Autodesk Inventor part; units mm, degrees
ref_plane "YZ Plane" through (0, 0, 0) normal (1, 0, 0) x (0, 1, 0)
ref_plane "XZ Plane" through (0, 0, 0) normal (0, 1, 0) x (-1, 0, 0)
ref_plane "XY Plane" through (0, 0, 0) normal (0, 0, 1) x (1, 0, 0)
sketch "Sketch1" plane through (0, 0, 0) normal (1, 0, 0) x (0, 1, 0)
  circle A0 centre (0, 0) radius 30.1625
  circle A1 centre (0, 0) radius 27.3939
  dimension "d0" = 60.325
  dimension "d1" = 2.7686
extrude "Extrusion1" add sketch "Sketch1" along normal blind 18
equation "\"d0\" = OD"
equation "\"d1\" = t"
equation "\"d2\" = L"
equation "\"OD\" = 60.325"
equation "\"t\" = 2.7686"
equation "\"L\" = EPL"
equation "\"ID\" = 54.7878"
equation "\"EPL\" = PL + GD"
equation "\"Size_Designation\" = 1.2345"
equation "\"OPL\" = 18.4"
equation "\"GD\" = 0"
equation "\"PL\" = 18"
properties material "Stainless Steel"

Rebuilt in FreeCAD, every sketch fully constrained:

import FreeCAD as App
import Part
import Sketcher
from FreeCAD import Vector
Q = App.Units.Quantity

doc = App.newDocument("Part")
body = doc.addObject("PartDesign::Body", "Body")

# Sketch on YZ plane
sketch1 = body.newObject("Sketcher::SketchObject", "Sketch")
sketch1.AttachmentSupport = (doc.getObject("YZ_Plane"), [""])
sketch1.MapMode = "FlatFace"
sketch1.addGeometry([
    Part.Circle(Vector(0, 0, 0), Vector(0, 0, 1), 30.1625),
    Part.Circle(Vector(0, 0, 0), Vector(0, 0, 1), 27.3939),
], False)
sketch1.addConstraint([
    Sketcher.Constraint("Coincident", 0, 3, -1, 1),
    Sketcher.Constraint("Coincident", 1, 3, -1, 1),
    Sketcher.Constraint("Diameter", 0, Q("2.375 in")),
    Sketcher.Constraint("Diameter", 1, Q("2.157 in")),
])
pad1 = body.newObject("PartDesign::Pad", "Pad")
pad1.Profile = sketch1
pad1.Length = 18

doc.recompute()
